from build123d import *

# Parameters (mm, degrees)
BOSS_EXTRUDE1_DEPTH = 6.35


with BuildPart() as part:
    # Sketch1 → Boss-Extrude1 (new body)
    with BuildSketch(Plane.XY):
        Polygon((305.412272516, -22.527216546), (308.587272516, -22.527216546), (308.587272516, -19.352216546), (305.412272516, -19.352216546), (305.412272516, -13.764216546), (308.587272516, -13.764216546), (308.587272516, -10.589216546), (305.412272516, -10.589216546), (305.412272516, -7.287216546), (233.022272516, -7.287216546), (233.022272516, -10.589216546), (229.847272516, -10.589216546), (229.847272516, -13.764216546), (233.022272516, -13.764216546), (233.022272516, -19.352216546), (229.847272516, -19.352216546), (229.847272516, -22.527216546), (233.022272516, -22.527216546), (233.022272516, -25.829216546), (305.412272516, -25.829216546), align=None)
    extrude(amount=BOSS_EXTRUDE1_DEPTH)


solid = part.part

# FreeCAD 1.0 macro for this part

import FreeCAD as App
import Part
import Sketcher

V = App.Vector
Q = App.Units.Quantity

doc = App.newDocument("Part")
params = doc.addObject("Spreadsheet::Sheet", "Params")
for row, (alias, value) in enumerate([
    ("sketch1_width", "2.85 in"),
    ("sketch1_height", "0.22 in"),
    ("sketch1_height2", "0.13 in"),
    ("sketch1_width2", "0.125 in"),
    ("pad1_length", "0.25 in"),
], start=1):
    params.set(f"A{row}", alias)
    params.set(f"B{row}", "=" + value)
    params.setAlias(f"B{row}", alias)

body = doc.addObject("PartDesign::Body", "Body")

sketch1 = doc.addObject("Sketcher::SketchObject", "Sketch")
body.addObject(sketch1)
sketch1.AttachmentSupport = (doc.XY_Plane, [""])
sketch1.MapMode = "FlatFace"
sketch1.addGeometry([
    Part.LineSegment(V(305.4, -22.5, 0), V(308.6, -22.5, 0)),
    Part.LineSegment(V(308.6, -22.5, 0), V(308.6, -19.4, 0)),
    Part.LineSegment(V(308.6, -19.4, 0), V(305.4, -19.4, 0)),
    Part.LineSegment(V(305.4, -19.4, 0), V(305.4, -13.8, 0)),
    Part.LineSegment(V(305.4, -13.8, 0), V(308.6, -13.8, 0)),
    Part.LineSegment(V(308.6, -13.8, 0), V(308.6, -10.6, 0)),
    Part.LineSegment(V(308.6, -10.6, 0), V(305.4, -10.6, 0)),
    Part.LineSegment(V(305.4, -10.6, 0), V(305.4, -7.3, 0)),
    Part.LineSegment(V(305.4, -7.3, 0), V(233, -7.3, 0)),
    Part.LineSegment(V(233, -7.3, 0), V(233, -10.6, 0)),
    Part.LineSegment(V(233, -10.6, 0), V(229.8, -10.6, 0)),
    Part.LineSegment(V(229.8, -10.6, 0), V(229.8, -13.8, 0)),
    Part.LineSegment(V(229.8, -13.8, 0), V(233, -13.8, 0)),
    Part.LineSegment(V(233, -13.8, 0), V(233, -19.4, 0)),
    Part.LineSegment(V(233, -19.4, 0), V(229.8, -19.4, 0)),
    Part.LineSegment(V(229.8, -19.4, 0), V(229.8, -22.5, 0)),
    Part.LineSegment(V(229.8, -22.5, 0), V(233, -22.5, 0)),
    Part.LineSegment(V(233, -22.5, 0), V(233, -25.8, 0)),
    Part.LineSegment(V(233, -25.8, 0), V(305.4, -25.8, 0)),
    Part.LineSegment(V(305.4, -25.8, 0), V(305.4, -22.5, 0)),
], False)
sketch1.addConstraint([
    Sketcher.Constraint("Coincident", 0, 2, 1, 1),
    Sketcher.Constraint("Coincident", 1, 2, 2, 1),
    Sketcher.Constraint("Coincident", 2, 2, 3, 1),
    Sketcher.Constraint("Coincident", 3, 2, 4, 1),
    Sketcher.Constraint("Coincident", 4, 2, 5, 1),
    Sketcher.Constraint("Coincident", 5, 2, 6, 1),
    Sketcher.Constraint("Coincident", 6, 2, 7, 1),
    Sketcher.Constraint("Coincident", 7, 2, 8, 1),
    Sketcher.Constraint("Coincident", 8, 2, 9, 1),
    Sketcher.Constraint("Coincident", 9, 2, 10, 1),
    Sketcher.Constraint("Coincident", 10, 2, 11, 1),
    Sketcher.Constraint("Coincident", 11, 2, 12, 1),
    Sketcher.Constraint("Coincident", 12, 2, 13, 1),
    Sketcher.Constraint("Coincident", 13, 2, 14, 1),
    Sketcher.Constraint("Coincident", 14, 2, 15, 1),
    Sketcher.Constraint("Coincident", 15, 2, 16, 1),
    Sketcher.Constraint("Coincident", 16, 2, 17, 1),
    Sketcher.Constraint("Coincident", 17, 2, 18, 1),
    Sketcher.Constraint("Coincident", 18, 2, 19, 1),
    Sketcher.Constraint("Coincident", 19, 2, 0, 1),
    Sketcher.Constraint("Horizontal", 0),
    Sketcher.Constraint("Vertical", 1),
    Sketcher.Constraint("Horizontal", 2),
    Sketcher.Constraint("Vertical", 3),
    Sketcher.Constraint("Horizontal", 4),
    Sketcher.Constraint("Vertical", 5),
    Sketcher.Constraint("Horizontal", 6),
    Sketcher.Constraint("Vertical", 7),
    Sketcher.Constraint("Horizontal", 8),
    Sketcher.Constraint("Vertical", 9),
    Sketcher.Constraint("Horizontal", 10),
    Sketcher.Constraint("Vertical", 11),
    Sketcher.Constraint("Horizontal", 12),
    Sketcher.Constraint("Vertical", 13),
    Sketcher.Constraint("Horizontal", 14),
    Sketcher.Constraint("Vertical", 15),
    Sketcher.Constraint("Horizontal", 16),
    Sketcher.Constraint("Vertical", 17),
    Sketcher.Constraint("Horizontal", 18),
    Sketcher.Constraint("Vertical", 19),
    Sketcher.Constraint("Horizontal", 6, 2, 9, 2),
    Sketcher.Constraint("Horizontal", 4, 2, 11, 2),
    Sketcher.Constraint("Horizontal", 2, 2, 13, 2),
    Sketcher.Constraint("Horizontal", 0, 2, 15, 2),
    Sketcher.Constraint("Vertical", 1, 2, 4, 2),
    Sketcher.Constraint("Vertical", 3, 2, 6, 2),
    Sketcher.Constraint("Vertical", 9, 2, 12, 2),
    Sketcher.Constraint("Vertical", 11, 2, 14, 2),
    Sketcher.Constraint("Vertical", 13, 2, 16, 2),
    Sketcher.Constraint("Vertical", 7, 2, 18, 2),
    Sketcher.Constraint("Equal", 6, 10),
    Sketcher.Constraint("Equal", 16, 1),
    Sketcher.Constraint("Equal", 1, 5),
    Sketcher.Constraint("Equal", 9, 17),
    Sketcher.Constraint("DistanceX", 8, 2, 8, 1, Q("2.85 in")),
    Sketcher.Constraint("DistanceY", 3, 1, 3, 2, Q("0.22 in")),
    Sketcher.Constraint("DistanceY", 7, 1, 7, 2, Q("0.13 in")),
    Sketcher.Constraint("DistanceX", 0, 1, 0, 2, Q("0.125 in")),
    Sketcher.Constraint("DistanceX", -1, 1, 0, 2, 308.587273),
    Sketcher.Constraint("DistanceY", 0, 2, -1, 1, 22.527217),
])
sketch1.setExpression("Constraints[54]", "Params.sketch1_width")
sketch1.setExpression("Constraints[55]", "Params.sketch1_height")
sketch1.setExpression("Constraints[56]", "Params.sketch1_height2")
sketch1.setExpression("Constraints[57]", "Params.sketch1_width2")
pad1 = doc.addObject("PartDesign::Pad", "Pad")
body.addObject(pad1)
pad1.Profile = sketch1
pad1.setExpression("Length", "Params.pad1_length")

doc.recompute()
